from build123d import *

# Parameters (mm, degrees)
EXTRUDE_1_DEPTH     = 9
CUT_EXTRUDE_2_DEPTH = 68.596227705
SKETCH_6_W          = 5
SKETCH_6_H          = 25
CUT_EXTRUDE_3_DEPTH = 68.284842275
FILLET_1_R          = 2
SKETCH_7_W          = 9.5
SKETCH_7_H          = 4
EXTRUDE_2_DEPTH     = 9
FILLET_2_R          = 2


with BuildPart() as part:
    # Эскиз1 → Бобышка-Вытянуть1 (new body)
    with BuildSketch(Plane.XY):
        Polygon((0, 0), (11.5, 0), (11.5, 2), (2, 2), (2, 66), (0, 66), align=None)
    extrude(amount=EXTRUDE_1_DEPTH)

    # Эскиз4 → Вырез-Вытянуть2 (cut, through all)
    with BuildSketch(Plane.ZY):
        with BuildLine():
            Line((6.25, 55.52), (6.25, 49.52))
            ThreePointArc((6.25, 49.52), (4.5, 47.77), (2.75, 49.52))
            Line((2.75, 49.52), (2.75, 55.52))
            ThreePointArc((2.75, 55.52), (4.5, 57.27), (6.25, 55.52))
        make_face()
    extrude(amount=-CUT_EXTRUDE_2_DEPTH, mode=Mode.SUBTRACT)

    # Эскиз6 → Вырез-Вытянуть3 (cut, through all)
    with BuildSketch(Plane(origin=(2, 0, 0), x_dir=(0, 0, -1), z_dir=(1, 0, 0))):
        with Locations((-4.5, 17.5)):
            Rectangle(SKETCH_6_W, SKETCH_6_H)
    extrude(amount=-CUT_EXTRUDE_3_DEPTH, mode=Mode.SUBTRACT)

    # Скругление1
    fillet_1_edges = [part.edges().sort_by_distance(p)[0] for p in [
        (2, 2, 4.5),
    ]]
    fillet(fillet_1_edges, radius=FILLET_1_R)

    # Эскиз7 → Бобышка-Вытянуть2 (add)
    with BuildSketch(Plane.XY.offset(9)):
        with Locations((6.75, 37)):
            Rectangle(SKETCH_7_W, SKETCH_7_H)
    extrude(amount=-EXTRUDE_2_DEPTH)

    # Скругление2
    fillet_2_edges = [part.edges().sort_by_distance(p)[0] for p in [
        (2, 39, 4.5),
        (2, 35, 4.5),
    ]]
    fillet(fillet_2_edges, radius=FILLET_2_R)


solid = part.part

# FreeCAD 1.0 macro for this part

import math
import FreeCAD as App
import Part
import Sketcher
Q = App.Units.Quantity


def edges_at(feature, points):
    """Names of the edges that pass closest to the given points."""
    edges = feature.Shape.Edges
    near = lambda p: min(range(len(edges)), key=lambda i: edges[i].distToShape(Part.Vertex(*p))[0])
    return sorted({f"Edge{near(p) + 1}" for p in points})

doc = App.newDocument("Part")
body = doc.addObject("PartDesign::Body", "Body")

# Sketch on XY plane
sketch1 = body.newObject("Sketcher::SketchObject", "Sketch")
sketch1.AttachmentSupport = (doc.getObject("XY_Plane"), [""])
sketch1.MapMode = "FlatFace"
sketch1.addGeometry(Part.LineSegment(App.Vector(0, 0, 0), App.Vector(11.5, 0, 0)), False)
sketch1.addGeometry(Part.LineSegment(App.Vector(11.5, 0, 0), App.Vector(11.5, 2, 0)), False)
sketch1.addGeometry(Part.LineSegment(App.Vector(11.5, 2, 0), App.Vector(2, 2, 0)), False)
sketch1.addGeometry(Part.LineSegment(App.Vector(2, 2, 0), App.Vector(2, 66, 0)), False)
sketch1.addGeometry(Part.LineSegment(App.Vector(2, 66, 0), App.Vector(0, 66, 0)), False)
sketch1.addGeometry(Part.LineSegment(App.Vector(0, 66, 0), App.Vector(0, 0, 0)), False)
sketch1.addConstraint(Sketcher.Constraint("Coincident", 0, 2, 1, 1))
sketch1.addConstraint(Sketcher.Constraint("Coincident", 1, 2, 2, 1))
sketch1.addConstraint(Sketcher.Constraint("Coincident", 2, 2, 3, 1))
sketch1.addConstraint(Sketcher.Constraint("Coincident", 3, 2, 4, 1))
sketch1.addConstraint(Sketcher.Constraint("Coincident", 4, 2, 5, 1))
sketch1.addConstraint(Sketcher.Constraint("Coincident", 5, 2, 0, 1))
sketch1.addConstraint(Sketcher.Constraint("Horizontal", 0))
sketch1.addConstraint(Sketcher.Constraint("Vertical", 1))
sketch1.addConstraint(Sketcher.Constraint("Horizontal", 2))
sketch1.addConstraint(Sketcher.Constraint("Vertical", 3))
sketch1.addConstraint(Sketcher.Constraint("Horizontal", 4))
sketch1.addConstraint(Sketcher.Constraint("Vertical", 5))
sketch1.addConstraint(Sketcher.Constraint("Coincident", 5, 2, -1, 1))
sketch1.addConstraint(Sketcher.Constraint("Equal", 4, 1))
sketch1.addConstraint(Sketcher.Constraint("DistanceX", 4, 2, 4, 1, Q("2 mm")))
sketch1.addConstraint(Sketcher.Constraint("DistanceY", 3, 1, 3, 2, Q("64 mm")))
sketch1.addConstraint(Sketcher.Constraint("DistanceX", 0, 1, 0, 2, Q("11.5 mm")))
pad1 = body.newObject("PartDesign::Pad", "Pad")
pad1.Profile = sketch1
pad1.Length = 9

# Sketch on YZ plane
sketch2 = body.newObject("Sketcher::SketchObject", "Sketch001")
sketch2.AttachmentSupport = (doc.getObject("YZ_Plane"), [""])
sketch2.MapMode = "FlatFace"
sketch2.addGeometry(Part.LineSegment(App.Vector(49.5, 6.2, 0), App.Vector(55.5, 6.2, 0)), False)
sketch2.addGeometry(Part.ArcOfCircle(Part.Circle(App.Vector(55.5, 4.5, 0), App.Vector(0, 0, 1), 1.8), math.radians(-90), math.radians(90)), False)
sketch2.addGeometry(Part.LineSegment(App.Vector(55.5, 2.8, 0), App.Vector(49.5, 2.8, 0)), False)
sketch2.addGeometry(Part.ArcOfCircle(Part.Circle(App.Vector(49.5, 4.5, 0), App.Vector(0, 0, 1), 1.8), math.radians(90), math.radians(270)), False)
sketch2.addConstraint(Sketcher.Constraint("Tangent", 0, 2, 1, 2))
sketch2.addConstraint(Sketcher.Constraint("Tangent", 1, 1, 2, 1))
sketch2.addConstraint(Sketcher.Constraint("Tangent", 2, 2, 3, 2))
sketch2.addConstraint(Sketcher.Constraint("Tangent", 3, 1, 0, 1))
sketch2.addConstraint(Sketcher.Constraint("Horizontal", 0))
sketch2.addConstraint(Sketcher.Constraint("Horizontal", 2))
sketch2.addConstraint(Sketcher.Constraint("DistanceX", 0, 1, 0, 2, Q("6 mm")))
sketch2.addConstraint(Sketcher.Constraint("Radius", 1, Q("1.75 mm")))
sketch2.addConstraint(Sketcher.Constraint("DistanceY", -1, 1, 1, 3, Q("4.5 mm")))
sketch2.addConstraint(Sketcher.Constraint("DistanceX", -1, 1, 1, 3, Q("55.52 mm")))
pocket1 = body.newObject("PartDesign::Pocket", "Pocket")
pocket1.Profile = sketch2
pocket1.Type = "ThroughAll"
pocket1.Reversed = True

# Sketch on YZ plane
sketch3 = body.newObject("Sketcher::SketchObject", "Sketch002")
sketch3.AttachmentSupport = (doc.getObject("YZ_Plane"), [""])
sketch3.MapMode = "FlatFace"
sketch3.AttachmentOffset = App.Placement(App.Vector(0, 0, 2), App.Rotation())
sketch3.addGeometry(Part.LineSegment(App.Vector(30, 7, 0), App.Vector(5, 7, 0)), False)
sketch3.addGeometry(Part.LineSegment(App.Vector(5, 7, 0), App.Vector(5, 2, 0)), False)
sketch3.addGeometry(Part.LineSegment(App.Vector(5, 2, 0), App.Vector(30, 2, 0)), False)
sketch3.addGeometry(Part.LineSegment(App.Vector(30, 2, 0), App.Vector(30, 7, 0)), False)
sketch3.addConstraint(Sketcher.Constraint("Coincident", 0, 2, 1, 1))
sketch3.addConstraint(Sketcher.Constraint("Coincident", 1, 2, 2, 1))
sketch3.addConstraint(Sketcher.Constraint("Coincident", 2, 2, 3, 1))
sketch3.addConstraint(Sketcher.Constraint("Coincident", 3, 2, 0, 1))
sketch3.addConstraint(Sketcher.Constraint("Horizontal", 0))
sketch3.addConstraint(Sketcher.Constraint("Vertical", 1))
sketch3.addConstraint(Sketcher.Constraint("Horizontal", 2))
sketch3.addConstraint(Sketcher.Constraint("Vertical", 3))
sketch3.addConstraint(Sketcher.Constraint("DistanceX", 0, 2, 0, 1, Q("25 mm")))
sketch3.addConstraint(Sketcher.Constraint("DistanceY", 1, 2, 1, 1, Q("5 mm")))
sketch3.addConstraint(Sketcher.Constraint("DistanceX", -1, 1, 0, 2, Q("5 mm")))
sketch3.addConstraint(Sketcher.Constraint("DistanceY", -1, 1, 0, 2, Q("7 mm")))
pocket2 = body.newObject("PartDesign::Pocket", "Pocket001")
pocket2.Profile = sketch3
pocket2.Type = "ThroughAll"
doc.recompute()

fillet = body.newObject("PartDesign::Fillet", "Fillet")
fillet.Base = (pocket2, edges_at(pocket2, [(2, 2, 4.5)]))
fillet.Radius = 2

# Sketch on XY plane
sketch4 = body.newObject("Sketcher::SketchObject", "Sketch003")
sketch4.AttachmentSupport = (doc.getObject("XY_Plane"), [""])
sketch4.MapMode = "FlatFace"
sketch4.AttachmentOffset = App.Placement(App.Vector(0, 0, 9), App.Rotation())
sketch4.addGeometry(Part.LineSegment(App.Vector(2, 39, 0), App.Vector(2, 35, 0)), False)
sketch4.addGeometry(Part.LineSegment(App.Vector(2, 35, 0), App.Vector(11.5, 35, 0)), False)
sketch4.addGeometry(Part.LineSegment(App.Vector(11.5, 35, 0), App.Vector(11.5, 39, 0)), False)
sketch4.addGeometry(Part.LineSegment(App.Vector(11.5, 39, 0), App.Vector(2, 39, 0)), False)
sketch4.addConstraint(Sketcher.Constraint("Coincident", 0, 2, 1, 1))
sketch4.addConstraint(Sketcher.Constraint("Coincident", 1, 2, 2, 1))
sketch4.addConstraint(Sketcher.Constraint("Coincident", 2, 2, 3, 1))
sketch4.addConstraint(Sketcher.Constraint("Coincident", 3, 2, 0, 1))
sketch4.addConstraint(Sketcher.Constraint("Vertical", 0))
sketch4.addConstraint(Sketcher.Constraint("Horizontal", 1))
sketch4.addConstraint(Sketcher.Constraint("Vertical", 2))
sketch4.addConstraint(Sketcher.Constraint("Horizontal", 3))
sketch4.addConstraint(Sketcher.Constraint("DistanceY", 0, 2, 0, 1, Q("4 mm")))
sketch4.addConstraint(Sketcher.Constraint("DistanceX", 1, 1, 1, 2, Q("9.5 mm")))
sketch4.addConstraint(Sketcher.Constraint("DistanceX", -1, 1, 0, 2, Q("2 mm")))
sketch4.addConstraint(Sketcher.Constraint("DistanceY", -1, 1, 0, 2, Q("35 mm")))
pad2 = body.newObject("PartDesign::Pad", "Pad001")
pad2.Profile = sketch4
pad2.Length = 9
pad2.Reversed = True
doc.recompute()

fillet2 = body.newObject("PartDesign::Fillet", "Fillet001")
fillet2.Base = (pad2, edges_at(pad2, [(2, 39, 4.5), (2, 35, 4.5)]))
fillet2.Radius = 2

doc.recompute()
